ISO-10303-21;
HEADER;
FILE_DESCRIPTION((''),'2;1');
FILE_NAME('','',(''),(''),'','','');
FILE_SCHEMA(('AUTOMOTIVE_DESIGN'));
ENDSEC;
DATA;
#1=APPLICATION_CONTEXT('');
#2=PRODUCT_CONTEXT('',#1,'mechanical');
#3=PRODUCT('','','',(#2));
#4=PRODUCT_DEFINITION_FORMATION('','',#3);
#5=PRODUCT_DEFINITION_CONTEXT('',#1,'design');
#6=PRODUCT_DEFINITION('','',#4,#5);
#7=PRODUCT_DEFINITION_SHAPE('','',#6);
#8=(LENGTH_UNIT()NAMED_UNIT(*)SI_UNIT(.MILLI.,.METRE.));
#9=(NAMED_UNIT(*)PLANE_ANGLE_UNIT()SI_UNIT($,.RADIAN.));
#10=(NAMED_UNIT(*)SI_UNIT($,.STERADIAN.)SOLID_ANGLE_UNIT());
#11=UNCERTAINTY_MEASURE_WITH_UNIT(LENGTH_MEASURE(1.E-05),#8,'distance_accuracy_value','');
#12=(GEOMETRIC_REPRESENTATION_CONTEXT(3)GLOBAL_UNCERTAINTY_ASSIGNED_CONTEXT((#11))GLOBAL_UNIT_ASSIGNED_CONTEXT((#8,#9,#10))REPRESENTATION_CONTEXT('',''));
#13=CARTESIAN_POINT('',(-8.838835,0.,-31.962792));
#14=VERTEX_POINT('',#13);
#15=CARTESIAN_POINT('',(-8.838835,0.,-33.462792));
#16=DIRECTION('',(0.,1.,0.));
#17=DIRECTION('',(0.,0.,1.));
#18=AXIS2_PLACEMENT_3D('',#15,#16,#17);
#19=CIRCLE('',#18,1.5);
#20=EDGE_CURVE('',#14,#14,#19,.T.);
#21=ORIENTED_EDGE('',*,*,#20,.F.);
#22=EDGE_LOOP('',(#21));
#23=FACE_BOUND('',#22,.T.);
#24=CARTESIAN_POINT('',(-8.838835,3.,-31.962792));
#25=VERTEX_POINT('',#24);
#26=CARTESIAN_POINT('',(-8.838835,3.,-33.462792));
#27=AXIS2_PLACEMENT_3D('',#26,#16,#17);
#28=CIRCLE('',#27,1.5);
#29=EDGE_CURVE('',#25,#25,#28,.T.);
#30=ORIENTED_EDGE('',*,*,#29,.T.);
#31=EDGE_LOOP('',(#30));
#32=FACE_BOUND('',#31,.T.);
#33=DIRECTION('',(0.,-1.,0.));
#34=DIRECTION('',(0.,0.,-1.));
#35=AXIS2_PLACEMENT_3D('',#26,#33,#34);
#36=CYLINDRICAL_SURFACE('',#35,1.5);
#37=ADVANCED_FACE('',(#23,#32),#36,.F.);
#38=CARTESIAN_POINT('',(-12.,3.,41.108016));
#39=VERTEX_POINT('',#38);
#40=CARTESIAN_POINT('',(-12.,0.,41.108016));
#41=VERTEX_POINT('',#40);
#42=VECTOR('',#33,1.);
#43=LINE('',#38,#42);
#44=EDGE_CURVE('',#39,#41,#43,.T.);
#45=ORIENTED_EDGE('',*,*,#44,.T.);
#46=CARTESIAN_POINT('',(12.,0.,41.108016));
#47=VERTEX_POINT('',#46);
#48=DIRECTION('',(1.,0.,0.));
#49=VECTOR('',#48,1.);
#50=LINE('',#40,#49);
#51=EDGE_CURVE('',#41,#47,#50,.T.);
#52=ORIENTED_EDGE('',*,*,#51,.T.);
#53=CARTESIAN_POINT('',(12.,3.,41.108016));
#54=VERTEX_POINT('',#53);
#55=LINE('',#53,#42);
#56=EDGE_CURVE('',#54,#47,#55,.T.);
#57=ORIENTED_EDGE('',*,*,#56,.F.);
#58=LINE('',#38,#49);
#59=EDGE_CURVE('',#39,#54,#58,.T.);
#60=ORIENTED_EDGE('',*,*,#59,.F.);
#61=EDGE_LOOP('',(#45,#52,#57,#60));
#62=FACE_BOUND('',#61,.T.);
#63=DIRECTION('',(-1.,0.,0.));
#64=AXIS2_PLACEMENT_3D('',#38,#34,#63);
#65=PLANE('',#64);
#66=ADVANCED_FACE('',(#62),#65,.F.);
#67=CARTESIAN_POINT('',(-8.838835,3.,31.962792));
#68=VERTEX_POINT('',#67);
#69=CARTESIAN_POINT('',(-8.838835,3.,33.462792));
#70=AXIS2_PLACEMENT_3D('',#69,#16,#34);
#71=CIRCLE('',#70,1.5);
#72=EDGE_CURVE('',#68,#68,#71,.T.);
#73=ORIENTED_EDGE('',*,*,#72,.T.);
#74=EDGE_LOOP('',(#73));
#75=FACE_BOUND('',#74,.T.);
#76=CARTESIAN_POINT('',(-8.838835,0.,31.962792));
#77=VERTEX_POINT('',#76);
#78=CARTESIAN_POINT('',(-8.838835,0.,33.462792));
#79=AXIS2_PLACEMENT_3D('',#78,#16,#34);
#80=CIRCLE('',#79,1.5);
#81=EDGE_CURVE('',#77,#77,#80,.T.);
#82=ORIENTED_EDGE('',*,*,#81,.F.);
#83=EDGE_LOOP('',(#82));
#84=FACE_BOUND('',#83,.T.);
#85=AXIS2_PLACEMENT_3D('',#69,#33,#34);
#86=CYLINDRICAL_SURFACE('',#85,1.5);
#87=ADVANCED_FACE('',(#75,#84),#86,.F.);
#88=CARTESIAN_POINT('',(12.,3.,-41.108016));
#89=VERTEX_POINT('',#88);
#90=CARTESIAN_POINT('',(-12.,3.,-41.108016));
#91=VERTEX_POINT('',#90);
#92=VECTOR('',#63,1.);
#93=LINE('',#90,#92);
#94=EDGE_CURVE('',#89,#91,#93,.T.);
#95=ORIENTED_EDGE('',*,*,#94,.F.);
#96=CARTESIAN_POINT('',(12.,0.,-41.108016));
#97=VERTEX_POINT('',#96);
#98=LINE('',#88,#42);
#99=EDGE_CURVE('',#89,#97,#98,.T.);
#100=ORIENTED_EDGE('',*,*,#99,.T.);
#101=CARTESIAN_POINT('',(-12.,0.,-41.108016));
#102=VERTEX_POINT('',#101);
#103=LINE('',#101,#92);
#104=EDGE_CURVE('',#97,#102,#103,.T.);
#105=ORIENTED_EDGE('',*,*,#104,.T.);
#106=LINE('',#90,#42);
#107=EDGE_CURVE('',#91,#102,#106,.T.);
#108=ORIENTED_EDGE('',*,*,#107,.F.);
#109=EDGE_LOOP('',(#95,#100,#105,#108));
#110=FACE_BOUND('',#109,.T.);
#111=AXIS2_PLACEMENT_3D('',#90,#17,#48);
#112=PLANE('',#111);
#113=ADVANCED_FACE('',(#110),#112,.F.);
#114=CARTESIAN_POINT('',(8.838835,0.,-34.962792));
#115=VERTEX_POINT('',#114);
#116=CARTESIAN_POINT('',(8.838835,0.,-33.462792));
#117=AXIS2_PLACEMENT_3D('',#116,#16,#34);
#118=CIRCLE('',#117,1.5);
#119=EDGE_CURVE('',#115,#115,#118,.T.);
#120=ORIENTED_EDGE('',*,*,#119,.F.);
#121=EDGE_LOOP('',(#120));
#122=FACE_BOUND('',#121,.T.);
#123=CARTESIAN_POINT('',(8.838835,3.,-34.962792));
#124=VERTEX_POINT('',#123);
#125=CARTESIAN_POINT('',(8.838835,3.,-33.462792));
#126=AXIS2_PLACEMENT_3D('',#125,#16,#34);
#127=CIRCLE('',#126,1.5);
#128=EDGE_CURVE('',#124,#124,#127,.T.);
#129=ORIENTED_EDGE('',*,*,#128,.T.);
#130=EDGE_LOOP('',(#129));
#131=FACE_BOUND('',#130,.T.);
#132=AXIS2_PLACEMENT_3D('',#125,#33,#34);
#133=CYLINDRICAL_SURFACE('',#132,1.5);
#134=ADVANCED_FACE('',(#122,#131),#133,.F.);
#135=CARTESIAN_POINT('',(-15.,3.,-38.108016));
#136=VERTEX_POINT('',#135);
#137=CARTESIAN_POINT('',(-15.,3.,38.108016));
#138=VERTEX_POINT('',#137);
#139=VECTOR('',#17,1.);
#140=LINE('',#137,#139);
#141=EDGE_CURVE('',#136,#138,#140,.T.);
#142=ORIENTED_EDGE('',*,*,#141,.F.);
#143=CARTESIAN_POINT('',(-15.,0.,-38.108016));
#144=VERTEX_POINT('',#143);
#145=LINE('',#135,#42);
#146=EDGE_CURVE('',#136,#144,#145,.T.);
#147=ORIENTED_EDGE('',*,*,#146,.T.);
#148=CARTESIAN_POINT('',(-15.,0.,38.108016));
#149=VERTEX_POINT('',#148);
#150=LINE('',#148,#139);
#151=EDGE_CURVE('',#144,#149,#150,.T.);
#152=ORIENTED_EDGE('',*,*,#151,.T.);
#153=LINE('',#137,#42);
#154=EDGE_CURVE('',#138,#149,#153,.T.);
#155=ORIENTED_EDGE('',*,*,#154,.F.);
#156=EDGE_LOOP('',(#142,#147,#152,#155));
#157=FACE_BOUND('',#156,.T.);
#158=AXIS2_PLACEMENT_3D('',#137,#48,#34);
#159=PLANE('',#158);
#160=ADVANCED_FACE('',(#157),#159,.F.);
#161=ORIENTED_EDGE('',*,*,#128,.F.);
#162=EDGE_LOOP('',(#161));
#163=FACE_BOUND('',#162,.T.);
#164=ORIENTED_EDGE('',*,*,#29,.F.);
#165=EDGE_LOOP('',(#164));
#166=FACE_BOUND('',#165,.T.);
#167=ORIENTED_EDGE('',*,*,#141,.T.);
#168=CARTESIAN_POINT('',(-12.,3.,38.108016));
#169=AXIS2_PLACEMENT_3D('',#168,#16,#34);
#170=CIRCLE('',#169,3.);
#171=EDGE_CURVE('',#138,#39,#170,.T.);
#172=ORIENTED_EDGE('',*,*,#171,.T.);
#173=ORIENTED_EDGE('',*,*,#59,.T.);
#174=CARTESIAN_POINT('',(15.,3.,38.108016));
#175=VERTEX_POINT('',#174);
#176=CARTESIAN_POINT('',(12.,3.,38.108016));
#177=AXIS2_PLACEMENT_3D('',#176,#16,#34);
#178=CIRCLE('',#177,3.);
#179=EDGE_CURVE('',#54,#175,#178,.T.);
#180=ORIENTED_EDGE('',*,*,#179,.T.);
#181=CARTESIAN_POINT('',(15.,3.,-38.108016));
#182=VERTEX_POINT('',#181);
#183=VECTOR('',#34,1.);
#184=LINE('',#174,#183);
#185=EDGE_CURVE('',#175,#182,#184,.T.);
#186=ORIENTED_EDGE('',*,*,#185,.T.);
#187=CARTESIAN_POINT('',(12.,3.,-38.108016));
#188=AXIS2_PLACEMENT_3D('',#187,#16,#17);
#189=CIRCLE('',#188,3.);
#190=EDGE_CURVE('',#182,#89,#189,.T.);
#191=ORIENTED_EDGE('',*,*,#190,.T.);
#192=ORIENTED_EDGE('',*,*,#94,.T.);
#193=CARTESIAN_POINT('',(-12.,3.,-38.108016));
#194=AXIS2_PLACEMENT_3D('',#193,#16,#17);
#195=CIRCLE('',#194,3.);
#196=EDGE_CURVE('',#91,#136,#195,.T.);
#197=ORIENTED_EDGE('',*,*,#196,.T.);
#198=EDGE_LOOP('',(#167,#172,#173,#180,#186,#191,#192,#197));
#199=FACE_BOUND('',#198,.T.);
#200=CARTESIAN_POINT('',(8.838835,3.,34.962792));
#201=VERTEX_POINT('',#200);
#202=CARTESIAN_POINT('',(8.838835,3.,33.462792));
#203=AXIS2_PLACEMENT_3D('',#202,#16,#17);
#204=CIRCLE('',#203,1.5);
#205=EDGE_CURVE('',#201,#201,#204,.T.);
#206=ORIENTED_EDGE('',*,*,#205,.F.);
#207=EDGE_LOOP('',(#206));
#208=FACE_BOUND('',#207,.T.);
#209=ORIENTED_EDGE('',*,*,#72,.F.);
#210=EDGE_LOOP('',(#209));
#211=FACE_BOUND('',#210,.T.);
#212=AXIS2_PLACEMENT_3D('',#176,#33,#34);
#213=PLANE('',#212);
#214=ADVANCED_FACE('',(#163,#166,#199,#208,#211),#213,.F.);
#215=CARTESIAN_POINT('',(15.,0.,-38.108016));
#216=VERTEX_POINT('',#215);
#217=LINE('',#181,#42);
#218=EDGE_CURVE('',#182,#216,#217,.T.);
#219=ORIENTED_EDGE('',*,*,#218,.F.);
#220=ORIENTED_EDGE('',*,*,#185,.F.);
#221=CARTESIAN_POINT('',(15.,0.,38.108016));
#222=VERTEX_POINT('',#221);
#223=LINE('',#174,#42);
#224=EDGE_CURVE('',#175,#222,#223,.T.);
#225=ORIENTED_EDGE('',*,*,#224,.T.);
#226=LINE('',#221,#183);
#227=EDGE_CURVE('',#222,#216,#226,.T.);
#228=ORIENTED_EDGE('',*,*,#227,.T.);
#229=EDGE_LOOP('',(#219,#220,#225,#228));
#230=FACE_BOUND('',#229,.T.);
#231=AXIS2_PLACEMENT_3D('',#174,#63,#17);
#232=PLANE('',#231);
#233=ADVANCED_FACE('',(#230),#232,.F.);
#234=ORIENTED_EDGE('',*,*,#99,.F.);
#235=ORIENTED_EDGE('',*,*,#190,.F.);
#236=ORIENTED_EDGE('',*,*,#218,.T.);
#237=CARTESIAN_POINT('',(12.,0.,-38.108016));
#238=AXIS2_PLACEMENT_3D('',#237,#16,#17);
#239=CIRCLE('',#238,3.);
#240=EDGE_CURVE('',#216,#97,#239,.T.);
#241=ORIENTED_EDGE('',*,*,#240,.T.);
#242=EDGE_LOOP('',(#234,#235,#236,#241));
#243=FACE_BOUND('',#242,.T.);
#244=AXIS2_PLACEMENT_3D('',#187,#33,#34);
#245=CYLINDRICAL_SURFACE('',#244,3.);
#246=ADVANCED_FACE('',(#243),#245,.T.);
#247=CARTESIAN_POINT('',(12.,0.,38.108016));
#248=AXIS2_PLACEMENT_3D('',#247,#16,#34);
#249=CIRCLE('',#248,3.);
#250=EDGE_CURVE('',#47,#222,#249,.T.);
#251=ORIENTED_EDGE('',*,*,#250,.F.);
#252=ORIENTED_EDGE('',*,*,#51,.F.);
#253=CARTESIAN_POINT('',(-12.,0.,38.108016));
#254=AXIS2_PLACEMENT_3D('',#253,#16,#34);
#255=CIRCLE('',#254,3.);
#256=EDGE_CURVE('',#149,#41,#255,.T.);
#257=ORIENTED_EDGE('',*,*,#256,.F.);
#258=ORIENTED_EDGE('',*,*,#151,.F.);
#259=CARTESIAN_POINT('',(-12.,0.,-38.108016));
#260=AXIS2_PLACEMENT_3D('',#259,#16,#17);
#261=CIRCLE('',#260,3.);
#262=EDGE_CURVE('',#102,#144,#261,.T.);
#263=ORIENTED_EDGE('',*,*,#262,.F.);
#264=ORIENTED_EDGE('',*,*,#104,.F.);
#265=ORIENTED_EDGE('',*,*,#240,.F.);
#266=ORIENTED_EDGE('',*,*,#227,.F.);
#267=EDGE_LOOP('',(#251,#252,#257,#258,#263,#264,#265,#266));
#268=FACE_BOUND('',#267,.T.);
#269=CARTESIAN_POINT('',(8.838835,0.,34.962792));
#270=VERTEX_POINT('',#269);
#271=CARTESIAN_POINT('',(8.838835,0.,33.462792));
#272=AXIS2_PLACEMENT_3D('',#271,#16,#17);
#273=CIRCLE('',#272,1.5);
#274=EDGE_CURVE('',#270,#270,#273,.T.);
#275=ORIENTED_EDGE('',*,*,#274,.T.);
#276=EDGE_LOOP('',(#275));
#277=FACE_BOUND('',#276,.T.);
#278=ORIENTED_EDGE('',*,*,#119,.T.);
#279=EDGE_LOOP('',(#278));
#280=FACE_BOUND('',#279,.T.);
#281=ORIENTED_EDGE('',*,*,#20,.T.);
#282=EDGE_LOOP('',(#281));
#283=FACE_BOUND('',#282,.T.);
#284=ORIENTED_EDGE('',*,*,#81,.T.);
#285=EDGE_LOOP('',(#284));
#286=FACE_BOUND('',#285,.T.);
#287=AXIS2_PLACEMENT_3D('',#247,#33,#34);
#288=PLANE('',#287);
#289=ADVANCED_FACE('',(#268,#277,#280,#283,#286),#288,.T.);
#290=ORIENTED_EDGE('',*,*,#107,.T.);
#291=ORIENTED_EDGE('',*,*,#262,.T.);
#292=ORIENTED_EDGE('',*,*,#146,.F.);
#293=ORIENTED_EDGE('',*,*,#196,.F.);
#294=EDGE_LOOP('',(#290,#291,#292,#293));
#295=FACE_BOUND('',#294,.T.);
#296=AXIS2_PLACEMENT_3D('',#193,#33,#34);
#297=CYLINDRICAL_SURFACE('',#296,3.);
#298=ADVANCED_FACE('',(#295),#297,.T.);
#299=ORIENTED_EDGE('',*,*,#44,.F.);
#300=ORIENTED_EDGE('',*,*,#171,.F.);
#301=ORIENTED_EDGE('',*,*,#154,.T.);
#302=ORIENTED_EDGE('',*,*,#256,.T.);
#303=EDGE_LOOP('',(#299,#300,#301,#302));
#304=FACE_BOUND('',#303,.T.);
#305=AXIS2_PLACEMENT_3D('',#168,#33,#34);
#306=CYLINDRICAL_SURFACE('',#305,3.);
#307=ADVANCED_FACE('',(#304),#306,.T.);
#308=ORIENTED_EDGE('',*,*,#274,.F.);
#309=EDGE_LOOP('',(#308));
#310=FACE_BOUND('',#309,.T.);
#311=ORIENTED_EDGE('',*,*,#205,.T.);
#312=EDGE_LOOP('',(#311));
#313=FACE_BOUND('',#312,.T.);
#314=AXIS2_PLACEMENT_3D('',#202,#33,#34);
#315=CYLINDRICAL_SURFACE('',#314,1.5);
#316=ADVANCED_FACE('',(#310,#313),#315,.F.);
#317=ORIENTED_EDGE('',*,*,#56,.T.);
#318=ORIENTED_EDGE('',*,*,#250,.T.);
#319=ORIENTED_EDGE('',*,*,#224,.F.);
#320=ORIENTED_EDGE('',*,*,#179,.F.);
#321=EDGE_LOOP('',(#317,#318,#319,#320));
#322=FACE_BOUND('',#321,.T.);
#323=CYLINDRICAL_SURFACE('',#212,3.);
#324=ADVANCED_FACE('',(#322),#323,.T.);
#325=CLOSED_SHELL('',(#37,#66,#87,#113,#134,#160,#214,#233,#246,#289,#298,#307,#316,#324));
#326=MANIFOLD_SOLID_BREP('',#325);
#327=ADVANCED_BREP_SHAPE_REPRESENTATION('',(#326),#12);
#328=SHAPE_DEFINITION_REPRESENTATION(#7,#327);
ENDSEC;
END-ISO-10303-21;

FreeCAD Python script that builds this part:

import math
import FreeCAD as App
import Part
import Sketcher

doc = App.newDocument("Part")
body = doc.addObject("PartDesign::Body", "Body")

sketch1 = doc.addObject("Sketcher::SketchObject", "Sketch")
body.addObject(sketch1)
sketch1.AttachmentSupport = (doc.XZ_Plane, [""])
sketch1.MapMode = "FlatFace"
sketch1.addGeometry([
    Part.LineSegment(App.Vector(-12, 41.108016, 0), App.Vector(12, 41.108016, 0)),
    Part.ArcOfCircle(Part.Circle(App.Vector(12, 38.108016, 0), App.Vector(0, 0, 1), 3), math.radians(0), math.radians(90)),
    Part.LineSegment(App.Vector(15, 38.108016, 0), App.Vector(15, -38.108016, 0)),
    Part.ArcOfCircle(Part.Circle(App.Vector(12, -38.108016, 0), App.Vector(0, 0, 1), 3), math.radians(-90), math.radians(0)),
    Part.LineSegment(App.Vector(12, -41.108016, 0), App.Vector(-12, -41.108016, 0)),
    Part.ArcOfCircle(Part.Circle(App.Vector(-12, -38.108016, 0), App.Vector(0, 0, 1), 3), math.radians(180), math.radians(270)),
    Part.LineSegment(App.Vector(-15, -38.108016, 0), App.Vector(-15, 38.108016, 0)),
    Part.ArcOfCircle(Part.Circle(App.Vector(-12, 38.108016, 0), App.Vector(0, 0, 1), 3), math.radians(90), math.radians(180)),
    Part.Circle(App.Vector(-8.838835, 33.462792, 0), App.Vector(0, 0, 1), 1.5),
    Part.Circle(App.Vector(8.838835, 33.462792, 0), App.Vector(0, 0, 1), 1.5),
    Part.Circle(App.Vector(-8.838835, -33.462792, 0), App.Vector(0, 0, 1), 1.5),
    Part.Circle(App.Vector(8.838835, -33.462792, 0), App.Vector(0, 0, 1), 1.5),
], False)
sketch1.addConstraint([
    Sketcher.Constraint("Tangent", 0, 2, 1, 2),
    Sketcher.Constraint("Tangent", 1, 1, 2, 1),
    Sketcher.Constraint("Tangent", 2, 2, 3, 2),
    Sketcher.Constraint("Tangent", 3, 1, 4, 1),
    Sketcher.Constraint("Tangent", 4, 2, 5, 2),
    Sketcher.Constraint("Tangent", 5, 1, 6, 1),
    Sketcher.Constraint("Tangent", 6, 2, 7, 2),
    Sketcher.Constraint("Tangent", 7, 1, 0, 1),
    Sketcher.Constraint("Horizontal", 0),
    Sketcher.Constraint("Vertical", 2),
    Sketcher.Constraint("Horizontal", 4),
    Sketcher.Constraint("Vertical", 6),
    Sketcher.Constraint("Equal", 1, 3),
    Sketcher.Constraint("Equal", 3, 5),
    Sketcher.Constraint("Equal", 5, 7),
    Sketcher.Constraint("Equal", 8, 9),
    Sketcher.Constraint("Equal", 9, 10),
    Sketcher.Constraint("Equal", 10, 11),
    Sketcher.Constraint("Symmetric", 1, 3, 5, 3, -1, 1),
    Sketcher.Constraint("Symmetric", 9, 3, 10, 3, -1, 1),
    Sketcher.Constraint("Symmetric", 8, 3, 11, 3, -1, 1),
    Sketcher.Constraint("Symmetric", 8, 3, 9, 3, -2),
    Sketcher.Constraint("Diameter", 8, 3.0),
    Sketcher.Constraint("Radius", 1, 3.0),
    Sketcher.Constraint("DistanceX", 0, 1, 0, 2, 24.0),
    Sketcher.Constraint("DistanceY", 2, 2, 2, 1, 76.216033),
    Sketcher.Constraint("DistanceY", 5, 3, 8, 3, 71.570809),
    Sketcher.Constraint("DistanceX", 8, 3, 9, 3, 17.67767),
])
pad1 = doc.addObject("PartDesign::Pad", "Pad")
body.addObject(pad1)
pad1.Profile = sketch1
pad1.Length = 3
pad1.Reversed = True

doc.recompute()
